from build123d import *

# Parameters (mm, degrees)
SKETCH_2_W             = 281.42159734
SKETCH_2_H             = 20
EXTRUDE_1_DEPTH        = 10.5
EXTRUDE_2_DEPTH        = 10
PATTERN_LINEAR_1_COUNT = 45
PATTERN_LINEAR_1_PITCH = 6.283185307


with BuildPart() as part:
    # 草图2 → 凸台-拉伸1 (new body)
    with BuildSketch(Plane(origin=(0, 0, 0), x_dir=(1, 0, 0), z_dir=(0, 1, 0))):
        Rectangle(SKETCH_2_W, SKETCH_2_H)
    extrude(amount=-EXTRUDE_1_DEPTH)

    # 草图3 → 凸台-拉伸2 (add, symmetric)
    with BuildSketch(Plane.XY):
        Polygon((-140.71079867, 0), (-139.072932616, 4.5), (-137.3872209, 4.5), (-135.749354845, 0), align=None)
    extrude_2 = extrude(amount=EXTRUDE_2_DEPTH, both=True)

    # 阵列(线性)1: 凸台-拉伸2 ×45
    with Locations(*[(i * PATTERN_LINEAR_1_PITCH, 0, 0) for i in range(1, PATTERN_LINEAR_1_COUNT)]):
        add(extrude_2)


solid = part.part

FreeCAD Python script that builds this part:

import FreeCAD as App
import Part
import Sketcher
Q = App.Units.Quantity

doc = App.newDocument("Part")
body = doc.addObject("PartDesign::Body", "Body")

sketch1 = doc.addObject("Sketcher::SketchObject", "Sketch")
body.addObject(sketch1)
sketch1.AttachmentSupport = (doc.XZ_Plane, [""])
sketch1.MapMode = "FlatFace"
sketch1.addGeometry([
    Part.LineSegment(App.Vector(-141, -10, 0), App.Vector(-141, 10, 0)),
    Part.LineSegment(App.Vector(-141, 10, 0), App.Vector(141, 10, 0)),
    Part.LineSegment(App.Vector(141, 10, 0), App.Vector(141, -10, 0)),
    Part.LineSegment(App.Vector(141, -10, 0), App.Vector(-141, -10, 0)),
], False)
sketch1.addConstraint([
    Sketcher.Constraint("Coincident", 0, 2, 1, 1),
    Sketcher.Constraint("Coincident", 1, 2, 2, 1),
    Sketcher.Constraint("Coincident", 2, 2, 3, 1),
    Sketcher.Constraint("Coincident", 3, 2, 0, 1),
    Sketcher.Constraint("Vertical", 0),
    Sketcher.Constraint("Horizontal", 1),
    Sketcher.Constraint("Vertical", 2),
    Sketcher.Constraint("Horizontal", 3),
    Sketcher.Constraint("Symmetric", 0, 2, 2, 2, -1, 1),
    Sketcher.Constraint("DistanceY", 0, 1, 0, 2, Q("20 mm")),
    Sketcher.Constraint("DistanceX", 0, 2, -1, 1, Q("140.710799 mm")),
])
pad1 = doc.addObject("PartDesign::Pad", "Pad")
body.addObject(pad1)
pad1.Profile = sketch1
pad1.Length = 10.5

sketch2 = doc.addObject("Sketcher::SketchObject", "Sketch001")
body.addObject(sketch2)
sketch2.AttachmentSupport = (doc.XY_Plane, [""])
sketch2.MapMode = "FlatFace"
sketch2.addGeometry([
    Part.LineSegment(App.Vector(-139.1, 4.5, 0), App.Vector(-140.7, 0, 0)),
    Part.LineSegment(App.Vector(-140.7, 0, 0), App.Vector(-135.7, 0, 0)),
    Part.LineSegment(App.Vector(-135.7, 0, 0), App.Vector(-137.4, 4.5, 0)),
    Part.LineSegment(App.Vector(-137.4, 4.5, 0), App.Vector(-139.1, 4.5, 0)),
], False)
sketch2.addConstraint([
    Sketcher.Constraint("Coincident", 0, 2, 1, 1),
    Sketcher.Constraint("Coincident", 1, 2, 2, 1),
    Sketcher.Constraint("Coincident", 2, 2, 3, 1),
    Sketcher.Constraint("Coincident", 3, 2, 0, 1),
    Sketcher.Constraint("Horizontal", 1),
    Sketcher.Constraint("Horizontal", 3),
    Sketcher.Constraint("PointOnObject", 0, 2, -1),
    Sketcher.Constraint("Equal", 0, 2),
    Sketcher.Constraint("Angle", 0, Q("-110 deg")),
    Sketcher.Constraint("DistanceY", -1, 1, 2, 2, Q("4.5 mm")),
    Sketcher.Constraint("DistanceX", 3, 2, 3, 1, Q("1.685712 mm")),
    Sketcher.Constraint("DistanceX", 0, 2, -1, 1, Q("140.710799 mm")),
])
pad2 = doc.addObject("PartDesign::Pad", "Pad001")
body.addObject(pad2)
pad2.Profile = sketch2
pad2.Length = 20
pad2.Midplane = True
doc.recompute()

linearpattern = doc.addObject("PartDesign::LinearPattern", "LinearPattern")
body.addObject(linearpattern)
linearpattern.Originals = [pad2]
linearpattern.Direction = (doc.X_Axis, [""])
linearpattern.Mode = "offset"
linearpattern.Offset = 6.283185
linearpattern.Occurrences = 45
body.Tip = linearpattern

doc.recompute()
